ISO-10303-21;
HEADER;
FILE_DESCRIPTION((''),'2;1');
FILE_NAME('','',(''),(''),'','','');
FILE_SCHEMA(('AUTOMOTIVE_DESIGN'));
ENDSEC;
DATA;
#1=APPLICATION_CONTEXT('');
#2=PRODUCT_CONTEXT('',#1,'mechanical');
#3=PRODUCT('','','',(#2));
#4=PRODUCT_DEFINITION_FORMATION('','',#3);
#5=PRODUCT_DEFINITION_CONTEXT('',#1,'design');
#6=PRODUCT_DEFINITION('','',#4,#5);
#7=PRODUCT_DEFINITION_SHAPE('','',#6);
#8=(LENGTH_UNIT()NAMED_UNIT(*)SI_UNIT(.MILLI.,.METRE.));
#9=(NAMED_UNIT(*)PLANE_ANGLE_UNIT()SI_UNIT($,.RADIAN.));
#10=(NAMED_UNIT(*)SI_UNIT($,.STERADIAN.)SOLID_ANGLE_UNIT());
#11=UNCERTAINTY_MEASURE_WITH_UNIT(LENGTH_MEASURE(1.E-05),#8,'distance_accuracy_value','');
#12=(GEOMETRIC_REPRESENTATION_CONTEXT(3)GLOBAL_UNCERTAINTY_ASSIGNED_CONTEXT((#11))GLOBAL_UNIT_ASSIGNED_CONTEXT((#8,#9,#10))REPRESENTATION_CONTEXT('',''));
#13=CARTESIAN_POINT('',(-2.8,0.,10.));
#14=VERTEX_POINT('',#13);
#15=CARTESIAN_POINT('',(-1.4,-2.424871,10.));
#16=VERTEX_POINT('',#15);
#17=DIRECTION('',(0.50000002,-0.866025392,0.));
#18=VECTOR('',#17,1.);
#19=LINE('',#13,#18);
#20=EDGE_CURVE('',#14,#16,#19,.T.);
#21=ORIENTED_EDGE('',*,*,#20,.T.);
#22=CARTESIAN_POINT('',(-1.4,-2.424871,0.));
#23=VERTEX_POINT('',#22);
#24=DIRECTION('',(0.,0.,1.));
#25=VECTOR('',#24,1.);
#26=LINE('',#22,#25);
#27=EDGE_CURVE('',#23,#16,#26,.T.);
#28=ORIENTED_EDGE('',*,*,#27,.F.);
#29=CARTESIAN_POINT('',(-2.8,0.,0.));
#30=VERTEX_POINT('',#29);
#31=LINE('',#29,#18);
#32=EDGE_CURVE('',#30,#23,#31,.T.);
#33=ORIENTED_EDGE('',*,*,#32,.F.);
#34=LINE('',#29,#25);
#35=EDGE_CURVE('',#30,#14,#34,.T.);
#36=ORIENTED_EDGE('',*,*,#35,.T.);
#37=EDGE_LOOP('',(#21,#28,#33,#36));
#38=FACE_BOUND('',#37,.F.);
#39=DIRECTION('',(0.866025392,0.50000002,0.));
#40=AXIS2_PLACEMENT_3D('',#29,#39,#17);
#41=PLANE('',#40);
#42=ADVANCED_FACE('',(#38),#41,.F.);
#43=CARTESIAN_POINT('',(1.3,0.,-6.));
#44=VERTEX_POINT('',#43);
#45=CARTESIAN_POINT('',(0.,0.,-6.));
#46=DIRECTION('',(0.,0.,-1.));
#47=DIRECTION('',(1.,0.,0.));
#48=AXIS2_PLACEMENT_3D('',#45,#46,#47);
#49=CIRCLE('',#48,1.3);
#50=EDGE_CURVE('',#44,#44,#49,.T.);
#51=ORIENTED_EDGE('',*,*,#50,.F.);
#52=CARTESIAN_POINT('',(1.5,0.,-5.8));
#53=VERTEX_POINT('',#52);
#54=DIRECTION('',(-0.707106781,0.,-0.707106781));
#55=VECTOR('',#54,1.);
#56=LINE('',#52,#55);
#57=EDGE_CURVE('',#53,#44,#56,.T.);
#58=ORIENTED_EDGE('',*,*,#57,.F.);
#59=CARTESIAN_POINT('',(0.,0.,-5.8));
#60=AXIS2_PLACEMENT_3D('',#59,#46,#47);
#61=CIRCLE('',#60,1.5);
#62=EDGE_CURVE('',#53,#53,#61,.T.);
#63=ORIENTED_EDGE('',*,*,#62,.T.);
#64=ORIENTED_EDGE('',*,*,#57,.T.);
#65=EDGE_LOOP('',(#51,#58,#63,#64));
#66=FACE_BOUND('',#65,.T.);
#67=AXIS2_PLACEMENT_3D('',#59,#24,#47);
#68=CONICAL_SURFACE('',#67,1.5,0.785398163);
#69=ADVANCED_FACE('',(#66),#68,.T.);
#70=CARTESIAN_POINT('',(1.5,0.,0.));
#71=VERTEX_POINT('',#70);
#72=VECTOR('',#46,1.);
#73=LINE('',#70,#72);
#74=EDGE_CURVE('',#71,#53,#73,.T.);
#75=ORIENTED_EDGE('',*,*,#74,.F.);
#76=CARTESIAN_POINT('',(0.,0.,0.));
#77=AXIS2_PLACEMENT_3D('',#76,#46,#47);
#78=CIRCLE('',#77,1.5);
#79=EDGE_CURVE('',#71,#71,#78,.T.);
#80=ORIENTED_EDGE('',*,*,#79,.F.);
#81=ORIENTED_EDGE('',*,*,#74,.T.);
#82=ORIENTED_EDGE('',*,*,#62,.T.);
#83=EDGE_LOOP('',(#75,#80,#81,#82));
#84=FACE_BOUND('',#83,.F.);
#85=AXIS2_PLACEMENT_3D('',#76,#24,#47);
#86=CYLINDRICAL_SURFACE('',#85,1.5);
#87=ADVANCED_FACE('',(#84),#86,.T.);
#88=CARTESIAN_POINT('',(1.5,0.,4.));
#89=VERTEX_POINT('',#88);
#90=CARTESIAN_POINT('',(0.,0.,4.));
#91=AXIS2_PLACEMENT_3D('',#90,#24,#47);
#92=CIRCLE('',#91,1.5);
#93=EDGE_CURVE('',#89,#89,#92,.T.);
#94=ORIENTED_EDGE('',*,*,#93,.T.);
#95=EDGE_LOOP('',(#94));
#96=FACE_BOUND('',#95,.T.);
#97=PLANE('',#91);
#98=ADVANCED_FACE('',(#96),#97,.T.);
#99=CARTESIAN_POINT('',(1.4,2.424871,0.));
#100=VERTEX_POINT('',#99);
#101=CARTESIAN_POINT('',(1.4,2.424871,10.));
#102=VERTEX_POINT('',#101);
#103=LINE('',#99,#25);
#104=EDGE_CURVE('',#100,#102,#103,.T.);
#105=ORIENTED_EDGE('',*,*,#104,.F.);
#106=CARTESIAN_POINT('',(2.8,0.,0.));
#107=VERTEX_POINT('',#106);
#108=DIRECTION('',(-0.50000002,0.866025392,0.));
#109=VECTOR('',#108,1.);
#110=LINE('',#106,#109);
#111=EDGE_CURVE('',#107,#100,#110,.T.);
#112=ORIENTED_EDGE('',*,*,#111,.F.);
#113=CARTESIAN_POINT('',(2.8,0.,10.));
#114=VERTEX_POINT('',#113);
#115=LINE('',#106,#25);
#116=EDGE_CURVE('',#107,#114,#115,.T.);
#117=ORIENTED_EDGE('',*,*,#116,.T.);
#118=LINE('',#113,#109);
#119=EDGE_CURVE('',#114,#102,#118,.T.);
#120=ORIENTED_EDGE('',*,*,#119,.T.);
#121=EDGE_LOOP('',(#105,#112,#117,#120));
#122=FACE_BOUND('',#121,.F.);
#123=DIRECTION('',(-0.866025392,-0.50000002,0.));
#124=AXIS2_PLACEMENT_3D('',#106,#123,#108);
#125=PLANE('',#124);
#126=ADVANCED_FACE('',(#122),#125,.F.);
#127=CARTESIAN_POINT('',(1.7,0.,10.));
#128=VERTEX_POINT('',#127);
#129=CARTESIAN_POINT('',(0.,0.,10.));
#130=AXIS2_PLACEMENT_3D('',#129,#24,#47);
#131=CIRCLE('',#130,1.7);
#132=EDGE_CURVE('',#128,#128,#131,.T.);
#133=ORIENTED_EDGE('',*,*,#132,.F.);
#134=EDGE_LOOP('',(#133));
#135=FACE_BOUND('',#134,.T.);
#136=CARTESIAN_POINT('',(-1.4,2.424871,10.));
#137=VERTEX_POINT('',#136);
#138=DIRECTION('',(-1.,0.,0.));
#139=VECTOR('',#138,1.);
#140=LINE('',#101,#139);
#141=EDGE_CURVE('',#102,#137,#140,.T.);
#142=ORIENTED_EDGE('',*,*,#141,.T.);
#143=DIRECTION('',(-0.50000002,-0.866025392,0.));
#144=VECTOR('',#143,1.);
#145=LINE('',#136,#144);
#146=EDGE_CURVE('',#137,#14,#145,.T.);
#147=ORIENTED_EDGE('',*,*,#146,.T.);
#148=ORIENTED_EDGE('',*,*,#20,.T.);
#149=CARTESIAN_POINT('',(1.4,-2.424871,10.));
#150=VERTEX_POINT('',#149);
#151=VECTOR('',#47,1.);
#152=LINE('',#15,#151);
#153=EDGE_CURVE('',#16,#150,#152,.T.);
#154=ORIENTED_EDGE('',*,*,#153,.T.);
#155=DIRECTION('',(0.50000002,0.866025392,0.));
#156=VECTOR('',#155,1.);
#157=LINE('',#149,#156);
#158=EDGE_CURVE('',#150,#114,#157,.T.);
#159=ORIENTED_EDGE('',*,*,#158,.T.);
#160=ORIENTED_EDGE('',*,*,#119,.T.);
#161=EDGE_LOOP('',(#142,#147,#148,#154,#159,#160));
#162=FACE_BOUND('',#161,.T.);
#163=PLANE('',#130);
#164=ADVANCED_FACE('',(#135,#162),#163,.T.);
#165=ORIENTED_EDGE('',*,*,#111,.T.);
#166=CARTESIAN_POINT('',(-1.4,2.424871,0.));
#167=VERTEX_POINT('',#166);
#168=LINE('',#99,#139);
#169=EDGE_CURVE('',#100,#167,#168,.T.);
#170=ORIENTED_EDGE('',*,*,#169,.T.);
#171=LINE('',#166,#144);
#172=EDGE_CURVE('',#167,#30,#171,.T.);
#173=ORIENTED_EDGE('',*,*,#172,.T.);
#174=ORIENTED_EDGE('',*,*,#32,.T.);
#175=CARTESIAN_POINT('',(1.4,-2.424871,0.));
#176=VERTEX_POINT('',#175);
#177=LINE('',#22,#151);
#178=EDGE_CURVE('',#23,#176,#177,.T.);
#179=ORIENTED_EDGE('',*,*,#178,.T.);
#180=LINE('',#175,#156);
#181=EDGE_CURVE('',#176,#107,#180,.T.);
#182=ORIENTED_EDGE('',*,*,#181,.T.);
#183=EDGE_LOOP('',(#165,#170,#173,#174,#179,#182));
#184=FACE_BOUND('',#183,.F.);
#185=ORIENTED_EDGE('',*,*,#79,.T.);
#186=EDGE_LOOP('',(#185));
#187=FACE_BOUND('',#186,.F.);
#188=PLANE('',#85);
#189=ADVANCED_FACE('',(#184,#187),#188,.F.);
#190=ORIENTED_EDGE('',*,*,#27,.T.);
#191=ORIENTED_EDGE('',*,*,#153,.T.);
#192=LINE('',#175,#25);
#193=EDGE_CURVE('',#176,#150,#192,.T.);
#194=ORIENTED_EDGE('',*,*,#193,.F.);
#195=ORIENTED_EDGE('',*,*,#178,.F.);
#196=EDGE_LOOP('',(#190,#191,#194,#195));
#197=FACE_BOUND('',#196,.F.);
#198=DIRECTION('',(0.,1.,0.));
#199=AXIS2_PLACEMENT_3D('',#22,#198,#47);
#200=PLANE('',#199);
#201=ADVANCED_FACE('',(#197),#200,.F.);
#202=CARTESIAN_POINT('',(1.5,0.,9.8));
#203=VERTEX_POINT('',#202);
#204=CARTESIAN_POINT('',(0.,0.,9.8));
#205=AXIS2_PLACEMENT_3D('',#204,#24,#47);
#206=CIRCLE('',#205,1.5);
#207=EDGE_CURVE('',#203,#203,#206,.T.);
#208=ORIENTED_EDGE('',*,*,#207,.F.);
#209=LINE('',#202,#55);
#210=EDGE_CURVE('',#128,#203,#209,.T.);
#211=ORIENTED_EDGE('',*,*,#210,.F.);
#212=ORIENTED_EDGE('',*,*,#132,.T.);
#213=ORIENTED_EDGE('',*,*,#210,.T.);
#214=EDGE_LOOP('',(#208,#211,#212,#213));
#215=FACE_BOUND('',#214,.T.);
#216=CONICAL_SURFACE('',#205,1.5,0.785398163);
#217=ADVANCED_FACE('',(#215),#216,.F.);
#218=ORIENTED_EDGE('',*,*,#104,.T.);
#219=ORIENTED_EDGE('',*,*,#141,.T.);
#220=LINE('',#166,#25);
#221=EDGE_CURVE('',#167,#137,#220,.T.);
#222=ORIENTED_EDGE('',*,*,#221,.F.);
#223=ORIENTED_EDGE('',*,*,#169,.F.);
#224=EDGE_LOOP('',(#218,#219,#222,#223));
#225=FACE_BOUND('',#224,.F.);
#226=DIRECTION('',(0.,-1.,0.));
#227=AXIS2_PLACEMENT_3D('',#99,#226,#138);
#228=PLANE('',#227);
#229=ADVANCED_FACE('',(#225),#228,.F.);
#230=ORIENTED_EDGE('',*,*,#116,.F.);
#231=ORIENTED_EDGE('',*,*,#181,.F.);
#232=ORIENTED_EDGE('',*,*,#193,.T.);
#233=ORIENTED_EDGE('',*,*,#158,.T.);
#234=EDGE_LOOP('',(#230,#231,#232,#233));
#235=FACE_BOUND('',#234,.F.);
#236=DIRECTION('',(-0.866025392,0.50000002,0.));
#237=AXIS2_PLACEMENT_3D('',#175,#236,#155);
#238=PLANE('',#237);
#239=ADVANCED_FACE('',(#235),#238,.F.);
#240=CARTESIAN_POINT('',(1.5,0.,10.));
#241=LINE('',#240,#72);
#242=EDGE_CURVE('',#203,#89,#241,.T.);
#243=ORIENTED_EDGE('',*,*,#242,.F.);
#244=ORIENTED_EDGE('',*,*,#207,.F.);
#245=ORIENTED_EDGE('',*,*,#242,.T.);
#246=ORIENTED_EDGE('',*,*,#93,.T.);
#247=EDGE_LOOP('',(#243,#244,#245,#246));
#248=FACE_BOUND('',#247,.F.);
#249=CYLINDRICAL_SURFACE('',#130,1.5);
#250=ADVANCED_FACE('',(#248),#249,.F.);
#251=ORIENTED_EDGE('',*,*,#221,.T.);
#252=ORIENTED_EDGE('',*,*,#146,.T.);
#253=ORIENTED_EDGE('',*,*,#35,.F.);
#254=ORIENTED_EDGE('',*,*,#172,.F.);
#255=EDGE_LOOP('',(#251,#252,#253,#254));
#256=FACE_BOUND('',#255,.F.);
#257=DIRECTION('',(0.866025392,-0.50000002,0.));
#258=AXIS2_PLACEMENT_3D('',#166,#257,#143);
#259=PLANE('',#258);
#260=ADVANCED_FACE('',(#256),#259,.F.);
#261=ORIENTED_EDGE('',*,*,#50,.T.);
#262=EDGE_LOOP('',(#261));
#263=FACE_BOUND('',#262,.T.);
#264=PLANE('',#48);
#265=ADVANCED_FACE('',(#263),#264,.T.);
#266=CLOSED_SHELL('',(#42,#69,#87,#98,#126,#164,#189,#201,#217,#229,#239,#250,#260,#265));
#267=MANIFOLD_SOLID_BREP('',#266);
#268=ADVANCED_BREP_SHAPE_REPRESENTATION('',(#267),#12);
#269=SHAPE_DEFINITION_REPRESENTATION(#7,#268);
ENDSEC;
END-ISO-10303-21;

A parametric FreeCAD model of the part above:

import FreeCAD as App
import Part
import Sketcher
Q = App.Units.Quantity


def edges_at(feature, points):
    """Names of the edges that pass closest to the given points."""
    edges = feature.Shape.Edges
    near = lambda p: min(range(len(edges)), key=lambda i: edges[i].distToShape(Part.Vertex(*p))[0])
    return sorted({f"Edge{near(p) + 1}" for p in points})

doc = App.newDocument("Part")
params = doc.addObject("Spreadsheet::Sheet", "Params")
for row, (alias, value) in enumerate([
    ("sketch1_width", "2.8 mm"),
    ("sketch1_length", "2.8 mm"),
    ("pad1_length", "10 mm"),
    ("sketch2_diameter", "3 mm"),
    ("pad2_length", "6 mm"),
    ("sketch3_diameter", "3 mm"),
    ("pocket1_length", "6 mm"),
    ("chamfer_size", "0.2 mm"),
], start=1):
    params.set(f"A{row}", alias)
    params.set(f"B{row}", "=" + value)
    params.setAlias(f"B{row}", alias)

body = doc.addObject("PartDesign::Body", "Body")

# Sketch on XY plane
sketch1 = doc.addObject("Sketcher::SketchObject", "Sketch")
body.addObject(sketch1)
sketch1.AttachmentSupport = (doc.XY_Plane, [""])
sketch1.MapMode = "FlatFace"
sketch1.addGeometry(Part.LineSegment(App.Vector(2.8, 0, 0), App.Vector(1.4, 2.4, 0)), False)
sketch1.addGeometry(Part.LineSegment(App.Vector(1.4, 2.4, 0), App.Vector(-1.4, 2.4, 0)), False)
sketch1.addGeometry(Part.LineSegment(App.Vector(-1.4, 2.4, 0), App.Vector(-2.8, 0, 0)), False)
sketch1.addGeometry(Part.LineSegment(App.Vector(-2.8, 0, 0), App.Vector(-1.4, -2.4, 0)), False)
sketch1.addGeometry(Part.LineSegment(App.Vector(-1.4, -2.4, 0), App.Vector(1.4, -2.4, 0)), False)
sketch1.addGeometry(Part.LineSegment(App.Vector(1.4, -2.4, 0), App.Vector(2.8, 0, 0)), False)
sketch1.addConstraint(Sketcher.Constraint("Coincident", 0, 2, 1, 1))
sketch1.addConstraint(Sketcher.Constraint("Coincident", 1, 2, 2, 1))
sketch1.addConstraint(Sketcher.Constraint("Coincident", 2, 2, 3, 1))
sketch1.addConstraint(Sketcher.Constraint("Coincident", 3, 2, 4, 1))
sketch1.addConstraint(Sketcher.Constraint("Coincident", 4, 2, 5, 1))
sketch1.addConstraint(Sketcher.Constraint("Coincident", 5, 2, 0, 1))
sketch1.addConstraint(Sketcher.Constraint("Horizontal", 1))
sketch1.addConstraint(Sketcher.Constraint("Horizontal", 4))
sketch1.addConstraint(Sketcher.Constraint("Symmetric", 0, 2, 3, 2, -1, 1))
sketch1.addConstraint(Sketcher.Constraint("Symmetric", 2, 2, 5, 2, -1, 1))
sketch1.addConstraint(Sketcher.Constraint("PointOnObject", 2, 2, -1))
sketch1.addConstraint(Sketcher.Constraint("Parallel", 2, 5))
sketch1.addConstraint(Sketcher.Constraint("Vertical", 1, 2, 3, 2))
sketch1.addConstraint(Sketcher.Constraint("Angle", 0, Q("120.000001 deg")))
sketch1.addConstraint(Sketcher.Constraint("DistanceX", 1, 2, 1, 1, Q("2.8 mm")))
sketch1.addConstraint(Sketcher.Constraint("Distance", 0, Q("2.8 mm")))
sketch1.setExpression("Constraints[14]", "Params.sketch1_width")
sketch1.setExpression("Constraints[15]", "Params.sketch1_length")
pad1 = doc.addObject("PartDesign::Pad", "Pad")
body.addObject(pad1)
pad1.Profile = sketch1
pad1.setExpression("Length", "Params.pad1_length")

# Sketch on XY plane
sketch2 = doc.addObject("Sketcher::SketchObject", "Sketch001")
body.addObject(sketch2)
sketch2.AttachmentSupport = (doc.XY_Plane, [""])
sketch2.MapMode = "FlatFace"
sketch2.addGeometry(Part.Circle(App.Vector(0, 0, 0), App.Vector(0, 0, 1), 1.5), False)
sketch2.addConstraint(Sketcher.Constraint("Coincident", 0, 3, -1, 1))
sketch2.addConstraint(Sketcher.Constraint("Diameter", 0, Q("3 mm")))
sketch2.setExpression("Constraints[1]", "Params.sketch2_diameter")
pad2 = doc.addObject("PartDesign::Pad", "Pad001")
body.addObject(pad2)
pad2.Profile = sketch2
pad2.setExpression("Length", "Params.pad2_length")
pad2.Reversed = True

# Sketch on XY plane
sketch3 = doc.addObject("Sketcher::SketchObject", "Sketch002")
body.addObject(sketch3)
sketch3.AttachmentSupport = (doc.XY_Plane, [""])
sketch3.MapMode = "FlatFace"
sketch3.AttachmentOffset = App.Placement(App.Vector(0, 0, 10), App.Rotation())
sketch3.addGeometry(Part.Circle(App.Vector(0, 0, 0), App.Vector(0, 0, 1), 1.5), False)
sketch3.addConstraint(Sketcher.Constraint("Coincident", 0, 3, -1, 1))
sketch3.addConstraint(Sketcher.Constraint("Diameter", 0, Q("3 mm")))
sketch3.setExpression("Constraints[1]", "Params.sketch3_diameter")
pocket1 = doc.addObject("PartDesign::Pocket", "Pocket")
body.addObject(pocket1)
pocket1.Profile = sketch3
pocket1.setExpression("Length", "Params.pocket1_length")
doc.recompute()

chamfer = doc.addObject("PartDesign::Chamfer", "Chamfer")
body.addObject(chamfer)
chamfer.Base = (pocket1, edges_at(pocket1, [(-1.5, 0, 10), (-1.5, 0, -6)]))
chamfer.setExpression("Size", "Params.chamfer_size")

doc.recompute()
